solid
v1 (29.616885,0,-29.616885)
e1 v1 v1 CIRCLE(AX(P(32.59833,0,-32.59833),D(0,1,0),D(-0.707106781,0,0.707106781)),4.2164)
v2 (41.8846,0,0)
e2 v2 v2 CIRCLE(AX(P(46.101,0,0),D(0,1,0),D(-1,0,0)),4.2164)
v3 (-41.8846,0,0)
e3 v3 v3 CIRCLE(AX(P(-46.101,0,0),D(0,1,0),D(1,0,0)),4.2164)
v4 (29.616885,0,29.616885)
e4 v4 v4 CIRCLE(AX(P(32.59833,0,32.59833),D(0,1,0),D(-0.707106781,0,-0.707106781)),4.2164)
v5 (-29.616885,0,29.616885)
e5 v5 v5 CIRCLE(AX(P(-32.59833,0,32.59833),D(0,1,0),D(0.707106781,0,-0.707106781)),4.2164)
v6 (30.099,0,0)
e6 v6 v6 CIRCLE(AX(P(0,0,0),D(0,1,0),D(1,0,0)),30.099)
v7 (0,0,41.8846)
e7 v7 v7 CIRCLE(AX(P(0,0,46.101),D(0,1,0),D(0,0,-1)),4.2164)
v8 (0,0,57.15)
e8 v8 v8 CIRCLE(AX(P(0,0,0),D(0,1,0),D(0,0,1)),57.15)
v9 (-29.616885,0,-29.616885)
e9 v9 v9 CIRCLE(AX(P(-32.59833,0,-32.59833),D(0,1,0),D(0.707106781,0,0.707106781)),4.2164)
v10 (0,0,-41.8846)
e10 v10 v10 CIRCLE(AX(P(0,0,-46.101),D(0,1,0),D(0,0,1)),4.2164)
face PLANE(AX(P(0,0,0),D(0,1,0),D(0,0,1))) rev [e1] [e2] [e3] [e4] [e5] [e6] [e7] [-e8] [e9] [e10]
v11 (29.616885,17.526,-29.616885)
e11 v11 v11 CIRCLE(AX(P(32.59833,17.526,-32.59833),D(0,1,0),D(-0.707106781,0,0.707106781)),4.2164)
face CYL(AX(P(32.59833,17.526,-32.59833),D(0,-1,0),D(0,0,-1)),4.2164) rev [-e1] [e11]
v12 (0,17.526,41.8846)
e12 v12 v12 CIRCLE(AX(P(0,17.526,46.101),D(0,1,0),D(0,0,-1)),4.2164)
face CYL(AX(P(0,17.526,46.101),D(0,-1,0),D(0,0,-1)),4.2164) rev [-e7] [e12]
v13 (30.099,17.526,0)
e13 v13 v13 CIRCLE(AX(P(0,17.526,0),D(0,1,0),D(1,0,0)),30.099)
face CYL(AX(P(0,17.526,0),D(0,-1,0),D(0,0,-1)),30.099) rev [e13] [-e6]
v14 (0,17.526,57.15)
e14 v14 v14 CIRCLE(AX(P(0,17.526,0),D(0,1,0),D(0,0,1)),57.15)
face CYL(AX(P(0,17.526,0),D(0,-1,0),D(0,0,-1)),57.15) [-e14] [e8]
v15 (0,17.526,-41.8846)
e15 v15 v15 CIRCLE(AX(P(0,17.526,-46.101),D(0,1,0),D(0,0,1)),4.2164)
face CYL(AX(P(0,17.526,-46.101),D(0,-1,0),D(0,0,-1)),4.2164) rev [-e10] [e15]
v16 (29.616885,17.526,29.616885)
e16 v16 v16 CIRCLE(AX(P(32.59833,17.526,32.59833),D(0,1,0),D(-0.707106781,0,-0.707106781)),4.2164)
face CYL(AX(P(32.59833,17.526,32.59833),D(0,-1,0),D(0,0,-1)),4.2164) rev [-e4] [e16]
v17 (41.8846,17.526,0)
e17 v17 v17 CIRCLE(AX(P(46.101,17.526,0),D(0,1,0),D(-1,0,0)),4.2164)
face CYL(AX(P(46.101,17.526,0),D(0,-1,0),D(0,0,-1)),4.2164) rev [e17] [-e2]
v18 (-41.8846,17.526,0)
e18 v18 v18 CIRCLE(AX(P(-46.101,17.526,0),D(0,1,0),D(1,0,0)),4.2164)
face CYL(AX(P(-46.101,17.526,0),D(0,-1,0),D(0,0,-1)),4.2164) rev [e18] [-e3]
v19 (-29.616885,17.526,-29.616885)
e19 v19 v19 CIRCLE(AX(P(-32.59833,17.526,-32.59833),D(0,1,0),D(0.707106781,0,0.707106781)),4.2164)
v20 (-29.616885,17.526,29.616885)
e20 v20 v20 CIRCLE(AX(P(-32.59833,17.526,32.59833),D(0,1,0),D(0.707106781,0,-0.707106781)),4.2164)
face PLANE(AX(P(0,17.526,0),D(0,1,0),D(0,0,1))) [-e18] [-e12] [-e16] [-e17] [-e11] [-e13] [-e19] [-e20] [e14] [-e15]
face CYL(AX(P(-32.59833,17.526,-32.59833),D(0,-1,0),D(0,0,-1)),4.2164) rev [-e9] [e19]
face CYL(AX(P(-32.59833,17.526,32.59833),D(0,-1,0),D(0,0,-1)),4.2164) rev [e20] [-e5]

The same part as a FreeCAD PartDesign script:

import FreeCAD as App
import Part
import Sketcher
from FreeCAD import Vector
Q = App.Units.Quantity

doc = App.newDocument("Part")
body = doc.addObject("PartDesign::Body", "Body")

# Sketch on XZ plane
sketch1 = doc.addObject("Sketcher::SketchObject", "Sketch")
body.addObject(sketch1)
sketch1.AttachmentSupport = (doc.XZ_Plane, [""])
sketch1.MapMode = "FlatFace"
sketch1.addGeometry([
    Part.Circle(Vector(0, 0, 0), Vector(0, 0, 1), 57),
    Part.Circle(Vector(0, 0, 0), Vector(0, 0, 1), 30),
], False)
sketch1.addConstraint([
    Sketcher.Constraint("Coincident", 0, 3, -1, 1),
    Sketcher.Constraint("Coincident", 1, 3, -1, 1),
    Sketcher.Constraint("Diameter", 0, Q("4.5 in")),
    Sketcher.Constraint("Diameter", 1, Q("2.37 in")),
])
pad1 = doc.addObject("PartDesign::Pad", "Pad")
body.addObject(pad1)
pad1.Profile = sketch1
pad1.Length = Q("0.69 in")
pad1.Reversed = True

# Sketch on XZ plane
sketch2 = doc.addObject("Sketcher::SketchObject", "Sketch001")
body.addObject(sketch2)
sketch2.AttachmentSupport = (doc.XZ_Plane, [""])
sketch2.MapMode = "FlatFace"
sketch2.addGeometry(Part.Circle(Vector(0, -46.1, 0), Vector(0, 0, 1), 4.2), False)
sketch2.addConstraint([
    Sketcher.Constraint("PointOnObject", 0, 3, -2),
    Sketcher.Constraint("Diameter", 0, Q("0.332 in")),
    Sketcher.Constraint("DistanceY", 0, 3, -1, 1, Q("1.815 in")),
])
pocket1 = doc.addObject("PartDesign::Pocket", "Pocket")
body.addObject(pocket1)
pocket1.Profile = sketch2
pocket1.Length = Q("0.69 in")
doc.recompute()

polarpattern = doc.addObject("PartDesign::PolarPattern", "PolarPattern")
body.addObject(polarpattern)
polarpattern.Originals = [pocket1]
polarpattern.Axis = (doc.Y_Axis, [""])
polarpattern.Angle = 360
polarpattern.Occurrences = 8
body.Tip = polarpattern

doc.recompute()
